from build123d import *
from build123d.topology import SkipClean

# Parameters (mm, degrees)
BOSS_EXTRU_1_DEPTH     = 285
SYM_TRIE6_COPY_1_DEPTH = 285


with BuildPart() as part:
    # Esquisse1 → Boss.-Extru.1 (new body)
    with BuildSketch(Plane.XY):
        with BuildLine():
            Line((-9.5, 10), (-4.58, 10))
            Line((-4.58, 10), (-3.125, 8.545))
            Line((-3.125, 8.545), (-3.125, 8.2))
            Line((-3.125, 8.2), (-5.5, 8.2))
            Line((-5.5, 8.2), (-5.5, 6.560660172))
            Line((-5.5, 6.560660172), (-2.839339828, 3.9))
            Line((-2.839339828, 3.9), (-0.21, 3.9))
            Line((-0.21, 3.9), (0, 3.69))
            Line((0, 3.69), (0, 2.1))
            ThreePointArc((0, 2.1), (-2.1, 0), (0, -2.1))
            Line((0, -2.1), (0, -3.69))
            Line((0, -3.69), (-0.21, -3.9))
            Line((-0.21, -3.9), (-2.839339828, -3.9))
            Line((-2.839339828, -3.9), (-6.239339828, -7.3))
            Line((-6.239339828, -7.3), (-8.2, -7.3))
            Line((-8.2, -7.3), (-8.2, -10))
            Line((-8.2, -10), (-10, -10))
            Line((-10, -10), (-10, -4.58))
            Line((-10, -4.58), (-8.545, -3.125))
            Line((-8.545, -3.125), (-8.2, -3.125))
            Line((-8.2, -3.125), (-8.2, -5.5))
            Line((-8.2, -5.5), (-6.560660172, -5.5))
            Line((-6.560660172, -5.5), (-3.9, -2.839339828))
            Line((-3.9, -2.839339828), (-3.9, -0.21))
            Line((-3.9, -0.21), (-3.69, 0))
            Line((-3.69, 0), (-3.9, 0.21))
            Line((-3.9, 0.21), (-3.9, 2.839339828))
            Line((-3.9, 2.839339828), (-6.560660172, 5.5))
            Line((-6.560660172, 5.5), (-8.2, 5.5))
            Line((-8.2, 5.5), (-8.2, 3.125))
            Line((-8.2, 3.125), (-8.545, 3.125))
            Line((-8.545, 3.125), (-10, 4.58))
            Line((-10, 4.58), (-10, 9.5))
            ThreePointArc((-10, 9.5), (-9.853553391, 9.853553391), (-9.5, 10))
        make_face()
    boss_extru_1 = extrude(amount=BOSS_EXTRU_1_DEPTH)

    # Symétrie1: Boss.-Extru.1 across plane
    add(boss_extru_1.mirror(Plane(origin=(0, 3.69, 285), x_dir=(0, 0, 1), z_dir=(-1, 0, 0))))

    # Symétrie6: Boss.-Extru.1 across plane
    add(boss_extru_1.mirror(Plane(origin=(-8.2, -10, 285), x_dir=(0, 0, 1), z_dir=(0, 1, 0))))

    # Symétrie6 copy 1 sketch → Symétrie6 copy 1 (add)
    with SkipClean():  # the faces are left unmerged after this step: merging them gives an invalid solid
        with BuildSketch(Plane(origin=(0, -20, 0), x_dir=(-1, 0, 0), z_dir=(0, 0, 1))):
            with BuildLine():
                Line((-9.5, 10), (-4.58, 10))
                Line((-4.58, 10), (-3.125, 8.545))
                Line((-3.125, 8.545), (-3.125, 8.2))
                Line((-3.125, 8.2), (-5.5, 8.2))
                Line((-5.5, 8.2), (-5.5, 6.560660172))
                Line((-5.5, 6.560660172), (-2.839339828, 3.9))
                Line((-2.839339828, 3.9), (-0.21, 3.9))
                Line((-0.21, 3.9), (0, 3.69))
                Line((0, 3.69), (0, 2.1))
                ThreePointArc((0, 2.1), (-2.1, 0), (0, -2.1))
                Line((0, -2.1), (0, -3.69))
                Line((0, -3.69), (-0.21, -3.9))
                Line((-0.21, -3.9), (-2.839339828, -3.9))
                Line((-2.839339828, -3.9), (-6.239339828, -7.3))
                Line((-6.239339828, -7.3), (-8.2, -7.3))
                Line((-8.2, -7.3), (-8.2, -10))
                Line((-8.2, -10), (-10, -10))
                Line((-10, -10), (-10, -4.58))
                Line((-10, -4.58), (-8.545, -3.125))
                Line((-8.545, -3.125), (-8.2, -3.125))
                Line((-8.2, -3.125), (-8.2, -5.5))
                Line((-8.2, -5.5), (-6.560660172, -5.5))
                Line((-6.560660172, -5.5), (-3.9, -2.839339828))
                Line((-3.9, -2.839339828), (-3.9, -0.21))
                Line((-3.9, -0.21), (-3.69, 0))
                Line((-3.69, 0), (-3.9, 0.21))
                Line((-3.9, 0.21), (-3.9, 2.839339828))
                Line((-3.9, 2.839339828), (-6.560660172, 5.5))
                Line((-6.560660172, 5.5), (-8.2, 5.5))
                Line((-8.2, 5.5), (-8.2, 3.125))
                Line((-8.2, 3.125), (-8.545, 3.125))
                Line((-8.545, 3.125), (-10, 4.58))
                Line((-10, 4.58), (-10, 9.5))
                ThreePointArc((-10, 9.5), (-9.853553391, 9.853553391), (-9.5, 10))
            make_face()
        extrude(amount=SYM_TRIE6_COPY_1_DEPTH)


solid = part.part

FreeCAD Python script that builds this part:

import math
import FreeCAD as App
import Part
import Sketcher

V = App.Vector
Q = App.Units.Quantity

doc = App.newDocument("Part")
body = doc.addObject("PartDesign::Body", "Body")

sketch1 = body.newObject("Sketcher::SketchObject", "Sketch")
sketch1.AttachmentSupport = (doc.getObject("XY_Plane"), [""])
sketch1.MapMode = "FlatFace"
sketch1.addGeometry([
    Part.LineSegment(V(-4.58, 10, 0), V(-9.5, 10, 0)),
    Part.ArcOfCircle(Part.Circle(V(-9.5, 9.5, 0), V(0, 0, 1), 0.5), math.radians(90), math.radians(180)),
    Part.LineSegment(V(-10, 9.5, 0), V(-10, 4.58, 0)),
    Part.LineSegment(V(-10, 4.58, 0), V(-8.54, 3.12, 0)),
    Part.LineSegment(V(-8.54, 3.12, 0), V(-8.2, 3.12, 0)),
    Part.LineSegment(V(-8.2, 3.12, 0), V(-8.2, 5.5, 0)),
    Part.LineSegment(V(-8.2, 5.5, 0), V(-6.56, 5.5, 0)),
    Part.LineSegment(V(-6.56, 5.5, 0), V(-3.9, 2.84, 0)),
    Part.LineSegment(V(-3.9, 2.84, 0), V(-3.9, 0.21, 0)),
    Part.LineSegment(V(-3.9, 0.21, 0), V(-3.69, 0, 0)),
    Part.LineSegment(V(-3.69, 0, 0), V(-3.9, -0.21, 0)),
    Part.LineSegment(V(-3.9, -0.21, 0), V(-3.9, -2.84, 0)),
    Part.LineSegment(V(-3.9, -2.84, 0), V(-6.56, -5.5, 0)),
    Part.LineSegment(V(-6.56, -5.5, 0), V(-8.2, -5.5, 0)),
    Part.LineSegment(V(-8.2, -5.5, 0), V(-8.2, -3.12, 0)),
    Part.LineSegment(V(-8.2, -3.12, 0), V(-8.54, -3.12, 0)),
    Part.LineSegment(V(-8.54, -3.12, 0), V(-10, -4.58, 0)),
    Part.LineSegment(V(-10, -4.58, 0), V(-10, -10, 0)),
    Part.LineSegment(V(-10, -10, 0), V(-8.2, -10, 0)),
    Part.LineSegment(V(-8.2, -10, 0), V(-8.2, -7.3, 0)),
    Part.LineSegment(V(-8.2, -7.3, 0), V(-6.24, -7.3, 0)),
    Part.LineSegment(V(-6.24, -7.3, 0), V(-2.84, -3.9, 0)),
    Part.LineSegment(V(-2.84, -3.9, 0), V(-0.21, -3.9, 0)),
    Part.LineSegment(V(-0.21, -3.9, 0), V(0, -3.69, 0)),
    Part.LineSegment(V(0, -3.69, 0), V(0, -2.1, 0)),
    Part.ArcOfCircle(Part.Circle(V(0, 0, 0), V(0, 0, 1), 2.1), math.radians(90), math.radians(270)),
    Part.LineSegment(V(0, 2.1, 0), V(0, 3.69, 0)),
    Part.LineSegment(V(0, 3.69, 0), V(-0.21, 3.9, 0)),
    Part.LineSegment(V(-0.21, 3.9, 0), V(-2.84, 3.9, 0)),
    Part.LineSegment(V(-2.84, 3.9, 0), V(-5.5, 6.56, 0)),
    Part.LineSegment(V(-5.5, 6.56, 0), V(-5.5, 8.2, 0)),
    Part.LineSegment(V(-5.5, 8.2, 0), V(-3.12, 8.2, 0)),
    Part.LineSegment(V(-3.12, 8.2, 0), V(-3.12, 8.54, 0)),
    Part.LineSegment(V(-3.12, 8.54, 0), V(-4.58, 10, 0)),
], False)
sketch1.addConstraint([
    Sketcher.Constraint("Tangent", 0, 2, 1, 1),
    Sketcher.Constraint("Tangent", 1, 2, 2, 1),
    Sketcher.Constraint("Coincident", 2, 2, 3, 1),
    Sketcher.Constraint("Coincident", 3, 2, 4, 1),
    Sketcher.Constraint("Coincident", 4, 2, 5, 1),
    Sketcher.Constraint("Coincident", 5, 2, 6, 1),
    Sketcher.Constraint("Coincident", 6, 2, 7, 1),
    Sketcher.Constraint("Coincident", 7, 2, 8, 1),
    Sketcher.Constraint("Coincident", 8, 2, 9, 1),
    Sketcher.Constraint("Coincident", 9, 2, 10, 1),
    Sketcher.Constraint("Coincident", 10, 2, 11, 1),
    Sketcher.Constraint("Coincident", 11, 2, 12, 1),
    Sketcher.Constraint("Coincident", 12, 2, 13, 1),
    Sketcher.Constraint("Coincident", 13, 2, 14, 1),
    Sketcher.Constraint("Coincident", 14, 2, 15, 1),
    Sketcher.Constraint("Coincident", 15, 2, 16, 1),
    Sketcher.Constraint("Coincident", 16, 2, 17, 1),
    Sketcher.Constraint("Coincident", 17, 2, 18, 1),
    Sketcher.Constraint("Coincident", 18, 2, 19, 1),
    Sketcher.Constraint("Coincident", 19, 2, 20, 1),
    Sketcher.Constraint("Coincident", 20, 2, 21, 1),
    Sketcher.Constraint("Coincident", 21, 2, 22, 1),
    Sketcher.Constraint("Coincident", 22, 2, 23, 1),
    Sketcher.Constraint("Coincident", 23, 2, 24, 1),
    Sketcher.Constraint("Coincident", 24, 2, 25, 2),
    Sketcher.Constraint("Coincident", 25, 1, 26, 1),
    Sketcher.Constraint("Coincident", 26, 2, 27, 1),
    Sketcher.Constraint("Coincident", 27, 2, 28, 1),
    Sketcher.Constraint("Coincident", 28, 2, 29, 1),
    Sketcher.Constraint("Coincident", 29, 2, 30, 1),
    Sketcher.Constraint("Coincident", 30, 2, 31, 1),
    Sketcher.Constraint("Coincident", 31, 2, 32, 1),
    Sketcher.Constraint("Coincident", 32, 2, 33, 1),
    Sketcher.Constraint("Coincident", 33, 2, 0, 1),
    Sketcher.Constraint("Horizontal", 0),
    Sketcher.Constraint("Vertical", 2),
    Sketcher.Constraint("Horizontal", 4),
    Sketcher.Constraint("Vertical", 5),
    Sketcher.Constraint("Horizontal", 6),
    Sketcher.Constraint("Vertical", 8),
    Sketcher.Constraint("Vertical", 11),
    Sketcher.Constraint("Horizontal", 13),
    Sketcher.Constraint("Vertical", 14),
    Sketcher.Constraint("Horizontal", 15),
    Sketcher.Constraint("Vertical", 17),
    Sketcher.Constraint("Horizontal", 18),
    Sketcher.Constraint("Vertical", 19),
    Sketcher.Constraint("Horizontal", 20),
    Sketcher.Constraint("Horizontal", 22),
    Sketcher.Constraint("Vertical", 24),
    Sketcher.Constraint("Vertical", 26),
    Sketcher.Constraint("Horizontal", 28),
    Sketcher.Constraint("Vertical", 30),
    Sketcher.Constraint("Horizontal", 31),
    Sketcher.Constraint("Vertical", 32),
    Sketcher.Constraint("Coincident", 25, 3, -1, 1),
    Sketcher.Constraint("Symmetric", 23, 2, 26, 2, -1, 1),
    Sketcher.Constraint("Symmetric", 8, 2, 10, 2, -1),
    Sketcher.Constraint("Symmetric", 6, 2, 12, 2, -1),
    Sketcher.Constraint("Symmetric", 4, 2, 14, 2, -1),
    Sketcher.Constraint("Symmetric", 2, 2, 16, 2, -1),
    Sketcher.Constraint("Symmetric", 22, 2, 27, 2, -1),
    Sketcher.Constraint("PointOnObject", 9, 2, -1),
    Sketcher.Constraint("PointOnObject", 23, 2, -2),
    Sketcher.Constraint("Parallel", 3, 7),
    Sketcher.Constraint("Parallel", 7, 9),
    Sketcher.Constraint("Perpendicular", 9, 10),
    Sketcher.Constraint("Parallel", 10, 12),
    Sketcher.Constraint("Parallel", 12, 16),
    Sketcher.Constraint("Parallel", 16, 21),
    Sketcher.Constraint("Parallel", 21, 23),
    Sketcher.Constraint("Parallel", 27, 29),
    Sketcher.Constraint("Parallel", 29, 33),
    Sketcher.Constraint("Vertical", 14, 2, 18, 2),
    Sketcher.Constraint("Vertical", 21, 2, 28, 2),
    Sketcher.Constraint("Equal", 0, 2),
    Sketcher.Constraint("Equal", 31, 5),
    Sketcher.Constraint("Equal", 28, 8),
    Sketcher.Constraint("Equal", 13, 30),
    Sketcher.Constraint("Equal", 15, 32),
    Sketcher.Constraint("Equal", 10, 23),
    Sketcher.Constraint("Equal", 12, 29),
    Sketcher.Constraint("Equal", 16, 33),
    Sketcher.Constraint("Radius", 1, Q("0.5 mm")),
    Sketcher.Constraint("Radius", 25, Q("2.1 mm")),
    Sketcher.Constraint("DistanceX", 18, 1, 18, 2, Q("1.8 mm")),
    Sketcher.Constraint("DistanceY", 19, 1, 19, 2, Q("2.7 mm")),
    Sketcher.Constraint("DistanceY", -1, 1, 0, 2, Q("10 mm")),
    Sketcher.Constraint("DistanceY", 17, 2, -1, 1, Q("10 mm")),
    Sketcher.Constraint("DistanceY", 5, 2, 1, 3, Q("4 mm")),
    Sketcher.Constraint("DistanceX", 0, 2, 0, 1, Q("4.92 mm")),
    Sketcher.Constraint("DistanceY", 24, 1, 24, 2, Q("1.59 mm")),
    Sketcher.Constraint("DistanceX", 7, 2, -1, 1, Q("3.9 mm")),
    Sketcher.Constraint("DistanceX", 4, 1, 4, 2, Q("0.345 mm")),
    Sketcher.Constraint("DistanceX", 6, 1, 6, 2, Q("1.63934 mm")),
])
pad1 = body.newObject("PartDesign::Pad", "Pad")
pad1.Profile = sketch1
pad1.Length = 285
doc.recompute()

mirrored = body.newObject("PartDesign::Mirrored", "Mirrored")
mirrored.Originals = [pad1]
mirrored.MirrorPlane = (doc.getObject("YZ_Plane"), [""])
body.Tip = mirrored
doc.recompute()

datumplane = body.newObject("PartDesign::Plane", "DatumPlane")
datumplane.AttachmentSupport = (doc.getObject("XZ_Plane"), [""])
datumplane.MapMode = "FlatFace"
datumplane.AttachmentOffset = App.Placement(V(0, 0, 10), App.Rotation())
mirrored2 = body.newObject("PartDesign::Mirrored", "Mirrored001")
mirrored2.Originals = [pad1]
mirrored2.MirrorPlane = (datumplane, [""])
body.Tip = mirrored2

sketch2 = body.newObject("Sketcher::SketchObject", "Sketch001")
sketch2.AttachmentSupport = (doc.getObject("XY_Plane"), [""])
sketch2.MapMode = "FlatFace"
sketch2.addGeometry([
    Part.LineSegment(V(4.58, -30, 0), V(9.5, -30, 0)),
    Part.ArcOfCircle(Part.Circle(V(9.5, -29.5, 0), V(0, 0, 1), 0.5), math.radians(-90), math.radians(0)),
    Part.LineSegment(V(10, -29.5, 0), V(10, -24.58, 0)),
    Part.LineSegment(V(10, -24.58, 0), V(8.54, -23.12, 0)),
    Part.LineSegment(V(8.54, -23.12, 0), V(8.2, -23.12, 0)),
    Part.LineSegment(V(8.2, -23.12, 0), V(8.2, -25.5, 0)),
    Part.LineSegment(V(8.2, -25.5, 0), V(6.56, -25.5, 0)),
    Part.LineSegment(V(6.56, -25.5, 0), V(3.9, -22.84, 0)),
    Part.LineSegment(V(3.9, -22.84, 0), V(3.9, -20.21, 0)),
    Part.LineSegment(V(3.9, -20.21, 0), V(3.69, -20, 0)),
    Part.LineSegment(V(3.69, -20, 0), V(3.9, -19.79, 0)),
    Part.LineSegment(V(3.9, -19.79, 0), V(3.9, -17.16, 0)),
    Part.LineSegment(V(3.9, -17.16, 0), V(6.56, -14.5, 0)),
    Part.LineSegment(V(6.56, -14.5, 0), V(8.2, -14.5, 0)),
    Part.LineSegment(V(8.2, -14.5, 0), V(8.2, -16.88, 0)),
    Part.LineSegment(V(8.2, -16.88, 0), V(8.54, -16.88, 0)),
    Part.LineSegment(V(8.54, -16.88, 0), V(10, -15.42, 0)),
    Part.LineSegment(V(10, -15.42, 0), V(10, -10, 0)),
    Part.LineSegment(V(10, -10, 0), V(8.2, -10, 0)),
    Part.LineSegment(V(8.2, -10, 0), V(8.2, -12.7, 0)),
    Part.LineSegment(V(8.2, -12.7, 0), V(6.24, -12.7, 0)),
    Part.LineSegment(V(6.24, -12.7, 0), V(2.84, -16.1, 0)),
    Part.LineSegment(V(2.84, -16.1, 0), V(0.21, -16.1, 0)),
    Part.LineSegment(V(0.21, -16.1, 0), V(0, -16.31, 0)),
    Part.LineSegment(V(0, -16.31, 0), V(0, -17.9, 0)),
    Part.ArcOfCircle(Part.Circle(V(0, -20, 0), V(0, 0, 1), 2.1), math.radians(-90), math.radians(90)),
    Part.LineSegment(V(0, -22.1, 0), V(0, -23.69, 0)),
    Part.LineSegment(V(0, -23.69, 0), V(0.21, -23.9, 0)),
    Part.LineSegment(V(0.21, -23.9, 0), V(2.84, -23.9, 0)),
    Part.LineSegment(V(2.84, -23.9, 0), V(5.5, -26.56, 0)),
    Part.LineSegment(V(5.5, -26.56, 0), V(5.5, -28.2, 0)),
    Part.LineSegment(V(5.5, -28.2, 0), V(3.12, -28.2, 0)),
    Part.LineSegment(V(3.12, -28.2, 0), V(3.12, -28.55, 0)),
    Part.LineSegment(V(3.12, -28.55, 0), V(4.58, -30, 0)),
], False)
sketch2.addConstraint([
    Sketcher.Constraint("Tangent", 0, 2, 1, 1),
    Sketcher.Constraint("Tangent", 1, 2, 2, 1),
    Sketcher.Constraint("Coincident", 2, 2, 3, 1),
    Sketcher.Constraint("Coincident", 3, 2, 4, 1),
    Sketcher.Constraint("Coincident", 4, 2, 5, 1),
    Sketcher.Constraint("Coincident", 5, 2, 6, 1),
    Sketcher.Constraint("Coincident", 6, 2, 7, 1),
    Sketcher.Constraint("Coincident", 7, 2, 8, 1),
    Sketcher.Constraint("Coincident", 8, 2, 9, 1),
    Sketcher.Constraint("Coincident", 9, 2, 10, 1),
    Sketcher.Constraint("Coincident", 10, 2, 11, 1),
    Sketcher.Constraint("Coincident", 11, 2, 12, 1),
    Sketcher.Constraint("Coincident", 12, 2, 13, 1),
    Sketcher.Constraint("Coincident", 13, 2, 14, 1),
    Sketcher.Constraint("Coincident", 14, 2, 15, 1),
    Sketcher.Constraint("Coincident", 15, 2, 16, 1),
    Sketcher.Constraint("Coincident", 16, 2, 17, 1),
    Sketcher.Constraint("Coincident", 17, 2, 18, 1),
    Sketcher.Constraint("Coincident", 18, 2, 19, 1),
    Sketcher.Constraint("Coincident", 19, 2, 20, 1),
    Sketcher.Constraint("Coincident", 20, 2, 21, 1),
    Sketcher.Constraint("Coincident", 21, 2, 22, 1),
    Sketcher.Constraint("Coincident", 22, 2, 23, 1),
    Sketcher.Constraint("Coincident", 23, 2, 24, 1),
    Sketcher.Constraint("Coincident", 24, 2, 25, 2),
    Sketcher.Constraint("Coincident", 25, 1, 26, 1),
    Sketcher.Constraint("Coincident", 26, 2, 27, 1),
    Sketcher.Constraint("Coincident", 27, 2, 28, 1),
    Sketcher.Constraint("Coincident", 28, 2, 29, 1),
    Sketcher.Constraint("Coincident", 29, 2, 30, 1),
    Sketcher.Constraint("Coincident", 30, 2, 31, 1),
    Sketcher.Constraint("Coincident", 31, 2, 32, 1),
    Sketcher.Constraint("Coincident", 32, 2, 33, 1),
    Sketcher.Constraint("Coincident", 33, 2, 0, 1),
    Sketcher.Constraint("Horizontal", 0),
    Sketcher.Constraint("Vertical", 2),
    Sketcher.Constraint("Horizontal", 4),
    Sketcher.Constraint("Vertical", 5),
    Sketcher.Constraint("Horizontal", 6),
    Sketcher.Constraint("Vertical", 8),
    Sketcher.Constraint("Vertical", 11),
    Sketcher.Constraint("Horizontal", 13),
    Sketcher.Constraint("Vertical", 14),
    Sketcher.Constraint("Horizontal", 15),
    Sketcher.Constraint("Vertical", 17),
    Sketcher.Constraint("Horizontal", 18),
    Sketcher.Constraint("Vertical", 19),
    Sketcher.Constraint("Horizontal", 20),
    Sketcher.Constraint("Horizontal", 22),
    Sketcher.Constraint("Vertical", 24),
    Sketcher.Constraint("Vertical", 26),
    Sketcher.Constraint("Horizontal", 28),
    Sketcher.Constraint("Vertical", 30),
    Sketcher.Constraint("Horizontal", 31),
    Sketcher.Constraint("Vertical", 32),
    Sketcher.Constraint("PointOnObject", 25, 3, -2),
    Sketcher.Constraint("PointOnObject", 23, 2, -2),
    Sketcher.Constraint("PointOnObject", 25, 1, -2),
    Sketcher.Constraint("Parallel", 3, 7),
    Sketcher.Constraint("Parallel", 7, 9),
    Sketcher.Constraint("Perpendicular", 9, 10),
    Sketcher.Constraint("Parallel", 10, 12),
    Sketcher.Constraint("Parallel", 12, 16),
    Sketcher.Constraint("Parallel", 16, 21),
    Sketcher.Constraint("Parallel", 21, 23),
    Sketcher.Constraint("Perpendicular", 23, 27),
    Sketcher.Constraint("Parallel", 27, 29),
    Sketcher.Constraint("Parallel", 29, 33),
    Sketcher.Constraint("Horizontal", 25, 3, 9, 2),
    Sketcher.Constraint("Vertical", 8, 2, 10, 2),
    Sketcher.Constraint("Vertical", 6, 2, 12, 2),
    Sketcher.Constraint("Vertical", 5, 2, 13, 2),
    Sketcher.Constraint("Vertical", 3, 2, 15, 2),
    Sketcher.Constraint("Vertical", 2, 2, 16, 2),
    Sketcher.Constraint("Vertical", 14, 2, 18, 2),
    Sketcher.Constraint("Vertical", 22, 2, 27, 2),
    Sketcher.Constraint("Vertical", 21, 2, 28, 2),
    Sketcher.Constraint("Equal", 0, 2),
    Sketcher.Constraint("Equal", 31, 5),
    Sketcher.Constraint("Equal", 28, 8),
    Sketcher.Constraint("Equal", 8, 11),
    Sketcher.Constraint("Equal", 5, 14),
    Sketcher.Constraint("Equal", 24, 26),
    Sketcher.Constraint("Equal", 13, 30),
    Sketcher.Constraint("Equal", 15, 32),
    Sketcher.Constraint("Equal", 9, 10),
    Sketcher.Constraint("Equal", 10, 23),
    Sketcher.Constraint("Equal", 12, 29),
    Sketcher.Constraint("Equal", 16, 33),
    Sketcher.Constraint("Radius", 1, Q("0.5 mm")),
    Sketcher.Constraint("Radius", 25, Q("2.1 mm")),
    Sketcher.Constraint("DistanceX", 18, 2, 18, 1, Q("1.8 mm")),
    Sketcher.Constraint("DistanceY", 19, 2, 19, 1, Q("2.7 mm")),
    Sketcher.Constraint("DistanceY", 25, 3, -1, 1, Q("20 mm")),
    Sketcher.Constraint("DistanceY", 0, 2, -1, 1, Q("30 mm")),
    Sketcher.Constraint("DistanceY", 17, 2, -1, 1, Q("10 mm")),
    Sketcher.Constraint("DistanceY", 1, 3, 5, 2, Q("4 mm")),
    Sketcher.Constraint("DistanceX", 0, 1, 0, 2, Q("4.92 mm")),
    Sketcher.Constraint("DistanceY", 24, 2, 24, 1, Q("1.59 mm")),
    Sketcher.Constraint("DistanceX", -1, 1, 7, 2, Q("3.9 mm")),
    Sketcher.Constraint("DistanceX", 4, 2, 4, 1, Q("0.345 mm")),
    Sketcher.Constraint("DistanceX", 6, 2, 6, 1, Q("1.63934 mm")),
])
pad2 = body.newObject("PartDesign::Pad", "Pad001")
pad2.Profile = sketch2
pad2.Length = 285

doc.recompute()
